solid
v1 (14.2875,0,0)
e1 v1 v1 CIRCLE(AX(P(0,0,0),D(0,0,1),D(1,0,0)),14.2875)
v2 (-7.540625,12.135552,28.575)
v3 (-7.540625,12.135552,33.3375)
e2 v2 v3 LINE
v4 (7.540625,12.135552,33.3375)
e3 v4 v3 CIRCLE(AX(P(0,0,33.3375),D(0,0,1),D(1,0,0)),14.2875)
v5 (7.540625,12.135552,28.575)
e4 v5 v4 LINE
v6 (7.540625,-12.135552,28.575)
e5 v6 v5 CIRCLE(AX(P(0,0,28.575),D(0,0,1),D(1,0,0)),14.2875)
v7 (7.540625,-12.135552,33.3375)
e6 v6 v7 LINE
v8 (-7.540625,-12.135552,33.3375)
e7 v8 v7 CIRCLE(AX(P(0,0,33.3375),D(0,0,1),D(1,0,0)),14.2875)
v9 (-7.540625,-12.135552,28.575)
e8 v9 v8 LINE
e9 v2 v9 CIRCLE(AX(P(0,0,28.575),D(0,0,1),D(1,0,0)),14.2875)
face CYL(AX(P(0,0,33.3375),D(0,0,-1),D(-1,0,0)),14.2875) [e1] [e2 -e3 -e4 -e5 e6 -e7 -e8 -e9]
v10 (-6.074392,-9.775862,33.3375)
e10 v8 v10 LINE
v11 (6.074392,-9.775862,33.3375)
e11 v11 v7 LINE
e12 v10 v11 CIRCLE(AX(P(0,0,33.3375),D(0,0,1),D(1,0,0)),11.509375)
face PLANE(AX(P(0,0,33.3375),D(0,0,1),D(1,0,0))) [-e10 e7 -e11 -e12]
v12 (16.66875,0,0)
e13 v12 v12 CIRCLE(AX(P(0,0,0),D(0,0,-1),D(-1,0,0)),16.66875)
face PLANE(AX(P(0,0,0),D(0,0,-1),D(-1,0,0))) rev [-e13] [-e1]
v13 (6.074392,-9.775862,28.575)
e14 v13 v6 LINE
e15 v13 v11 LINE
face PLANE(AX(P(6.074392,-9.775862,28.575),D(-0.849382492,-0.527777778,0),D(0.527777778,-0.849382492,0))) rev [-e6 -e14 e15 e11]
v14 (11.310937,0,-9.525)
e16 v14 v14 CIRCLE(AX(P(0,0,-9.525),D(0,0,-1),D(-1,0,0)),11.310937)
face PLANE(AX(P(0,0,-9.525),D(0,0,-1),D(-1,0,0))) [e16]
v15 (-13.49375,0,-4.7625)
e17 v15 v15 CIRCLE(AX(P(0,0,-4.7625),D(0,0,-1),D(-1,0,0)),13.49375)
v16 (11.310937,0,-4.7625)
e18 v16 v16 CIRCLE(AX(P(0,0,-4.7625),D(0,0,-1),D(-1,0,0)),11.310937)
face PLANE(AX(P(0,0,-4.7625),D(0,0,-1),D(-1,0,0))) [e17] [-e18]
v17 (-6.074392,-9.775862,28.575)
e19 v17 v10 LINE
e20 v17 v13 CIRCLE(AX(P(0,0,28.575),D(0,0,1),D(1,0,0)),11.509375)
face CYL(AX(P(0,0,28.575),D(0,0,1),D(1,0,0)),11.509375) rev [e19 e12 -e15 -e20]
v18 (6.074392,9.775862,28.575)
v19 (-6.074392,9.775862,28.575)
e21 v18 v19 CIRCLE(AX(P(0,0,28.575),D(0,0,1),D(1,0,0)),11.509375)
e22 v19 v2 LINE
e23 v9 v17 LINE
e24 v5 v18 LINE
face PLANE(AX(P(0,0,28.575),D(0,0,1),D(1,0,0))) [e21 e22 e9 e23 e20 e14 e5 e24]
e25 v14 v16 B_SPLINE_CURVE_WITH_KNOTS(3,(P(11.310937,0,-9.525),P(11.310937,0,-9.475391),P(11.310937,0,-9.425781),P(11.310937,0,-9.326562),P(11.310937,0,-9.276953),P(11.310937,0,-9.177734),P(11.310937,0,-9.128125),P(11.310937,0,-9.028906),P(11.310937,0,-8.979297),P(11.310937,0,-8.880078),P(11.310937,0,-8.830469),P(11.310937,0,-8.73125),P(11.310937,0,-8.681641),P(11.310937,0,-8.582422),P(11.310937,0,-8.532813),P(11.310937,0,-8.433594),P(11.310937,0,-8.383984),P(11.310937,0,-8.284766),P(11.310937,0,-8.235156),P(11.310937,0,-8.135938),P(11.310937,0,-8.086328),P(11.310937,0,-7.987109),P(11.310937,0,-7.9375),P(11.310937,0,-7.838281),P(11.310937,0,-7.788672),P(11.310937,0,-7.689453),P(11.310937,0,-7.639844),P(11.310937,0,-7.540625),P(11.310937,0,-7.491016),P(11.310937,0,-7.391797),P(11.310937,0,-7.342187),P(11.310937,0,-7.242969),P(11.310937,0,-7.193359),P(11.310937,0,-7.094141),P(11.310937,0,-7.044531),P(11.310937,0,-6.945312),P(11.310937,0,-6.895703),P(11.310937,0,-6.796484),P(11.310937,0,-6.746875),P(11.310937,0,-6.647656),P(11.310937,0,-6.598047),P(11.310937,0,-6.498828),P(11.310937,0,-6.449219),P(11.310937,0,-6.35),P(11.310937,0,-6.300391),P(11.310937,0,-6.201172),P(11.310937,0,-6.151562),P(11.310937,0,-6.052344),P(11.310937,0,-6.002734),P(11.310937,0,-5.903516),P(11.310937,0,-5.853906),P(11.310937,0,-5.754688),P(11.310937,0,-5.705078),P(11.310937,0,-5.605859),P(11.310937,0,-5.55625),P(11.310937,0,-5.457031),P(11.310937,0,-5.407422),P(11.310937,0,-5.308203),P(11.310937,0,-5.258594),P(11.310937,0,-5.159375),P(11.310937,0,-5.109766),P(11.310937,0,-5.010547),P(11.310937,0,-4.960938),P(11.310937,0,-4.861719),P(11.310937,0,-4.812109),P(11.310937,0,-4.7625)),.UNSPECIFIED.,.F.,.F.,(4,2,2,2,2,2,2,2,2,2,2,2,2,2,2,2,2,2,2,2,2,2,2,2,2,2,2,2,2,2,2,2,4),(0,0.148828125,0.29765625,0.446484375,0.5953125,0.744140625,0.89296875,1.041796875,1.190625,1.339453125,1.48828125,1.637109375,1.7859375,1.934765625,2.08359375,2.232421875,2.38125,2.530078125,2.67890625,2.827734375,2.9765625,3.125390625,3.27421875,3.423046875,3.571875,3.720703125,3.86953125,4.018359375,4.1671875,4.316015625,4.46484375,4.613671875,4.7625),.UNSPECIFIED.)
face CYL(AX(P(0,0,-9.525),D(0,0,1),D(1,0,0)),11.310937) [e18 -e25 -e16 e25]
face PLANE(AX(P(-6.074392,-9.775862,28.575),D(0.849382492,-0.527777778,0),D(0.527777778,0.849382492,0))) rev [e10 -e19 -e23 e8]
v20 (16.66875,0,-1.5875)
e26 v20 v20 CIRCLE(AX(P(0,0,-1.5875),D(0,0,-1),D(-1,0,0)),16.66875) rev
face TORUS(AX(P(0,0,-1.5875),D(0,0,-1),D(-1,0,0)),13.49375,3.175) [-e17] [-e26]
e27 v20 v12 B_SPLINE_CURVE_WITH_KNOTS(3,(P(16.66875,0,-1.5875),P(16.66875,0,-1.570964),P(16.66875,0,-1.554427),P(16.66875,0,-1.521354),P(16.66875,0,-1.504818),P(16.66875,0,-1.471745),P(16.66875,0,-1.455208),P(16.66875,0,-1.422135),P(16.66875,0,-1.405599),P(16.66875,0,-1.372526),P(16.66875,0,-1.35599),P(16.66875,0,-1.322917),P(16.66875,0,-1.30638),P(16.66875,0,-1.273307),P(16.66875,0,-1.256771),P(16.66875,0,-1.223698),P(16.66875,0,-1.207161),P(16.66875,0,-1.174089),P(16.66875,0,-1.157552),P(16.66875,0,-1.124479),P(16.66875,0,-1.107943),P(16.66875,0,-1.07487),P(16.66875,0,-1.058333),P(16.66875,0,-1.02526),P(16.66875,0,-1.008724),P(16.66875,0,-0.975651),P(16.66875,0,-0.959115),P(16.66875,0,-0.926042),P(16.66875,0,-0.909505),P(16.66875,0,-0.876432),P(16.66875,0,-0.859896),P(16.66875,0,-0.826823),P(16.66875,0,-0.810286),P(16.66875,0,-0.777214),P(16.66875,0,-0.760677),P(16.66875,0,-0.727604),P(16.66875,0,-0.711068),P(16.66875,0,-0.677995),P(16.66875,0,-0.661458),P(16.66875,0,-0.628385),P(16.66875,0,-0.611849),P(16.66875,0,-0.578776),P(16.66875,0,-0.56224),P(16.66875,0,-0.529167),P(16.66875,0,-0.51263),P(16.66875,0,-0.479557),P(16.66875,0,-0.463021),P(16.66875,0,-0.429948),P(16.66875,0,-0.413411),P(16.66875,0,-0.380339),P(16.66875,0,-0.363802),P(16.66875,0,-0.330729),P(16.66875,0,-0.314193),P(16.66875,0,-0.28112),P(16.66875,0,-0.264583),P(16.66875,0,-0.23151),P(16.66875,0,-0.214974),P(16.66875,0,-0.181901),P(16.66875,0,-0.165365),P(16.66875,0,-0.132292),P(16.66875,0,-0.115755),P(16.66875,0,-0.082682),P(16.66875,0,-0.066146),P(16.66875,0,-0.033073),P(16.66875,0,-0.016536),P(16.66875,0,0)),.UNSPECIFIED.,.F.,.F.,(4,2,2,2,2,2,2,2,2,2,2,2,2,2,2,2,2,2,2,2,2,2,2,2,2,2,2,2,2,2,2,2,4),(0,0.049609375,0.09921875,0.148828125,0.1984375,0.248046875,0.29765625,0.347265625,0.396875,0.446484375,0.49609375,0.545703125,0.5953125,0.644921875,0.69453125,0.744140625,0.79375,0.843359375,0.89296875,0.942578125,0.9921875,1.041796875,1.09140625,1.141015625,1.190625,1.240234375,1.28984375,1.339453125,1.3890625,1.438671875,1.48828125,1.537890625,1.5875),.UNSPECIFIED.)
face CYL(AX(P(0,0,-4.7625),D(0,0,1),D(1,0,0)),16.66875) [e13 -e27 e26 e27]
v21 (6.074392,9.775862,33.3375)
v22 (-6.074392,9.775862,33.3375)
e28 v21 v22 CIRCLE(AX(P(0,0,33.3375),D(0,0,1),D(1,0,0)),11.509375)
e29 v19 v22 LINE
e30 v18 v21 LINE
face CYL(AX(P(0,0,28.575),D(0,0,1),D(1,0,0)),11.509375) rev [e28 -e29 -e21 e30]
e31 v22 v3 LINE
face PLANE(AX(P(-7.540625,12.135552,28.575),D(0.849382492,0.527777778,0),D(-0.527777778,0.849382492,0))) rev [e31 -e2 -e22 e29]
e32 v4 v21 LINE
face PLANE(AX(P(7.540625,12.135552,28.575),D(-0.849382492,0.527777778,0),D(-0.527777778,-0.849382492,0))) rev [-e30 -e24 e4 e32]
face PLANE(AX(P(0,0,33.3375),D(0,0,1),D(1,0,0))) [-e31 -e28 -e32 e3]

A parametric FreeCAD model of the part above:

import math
import FreeCAD as App
import Part
import Sketcher

V = App.Vector
Q = App.Units.Quantity


def edges_at(feature, points):
    """Names of the edges that pass closest to the given points."""
    edges = feature.Shape.Edges
    near = lambda p: min(range(len(edges)), key=lambda i: edges[i].distToShape(Part.Vertex(*p))[0])
    return sorted({f"Edge{near(p) + 1}" for p in points})

doc = App.newDocument("Part")
body = doc.addObject("PartDesign::Body", "Body")

# Sketch on XY plane
sketch1 = body.newObject("Sketcher::SketchObject", "Sketch")
sketch1.AttachmentSupport = (doc.getObject("XY_Plane"), [""])
sketch1.MapMode = "FlatFace"
sketch1.addGeometry(Part.Circle(V(0, 0, 0), V(0, 0, 1), 14), False)
sketch1.addConstraint([
    Sketcher.Constraint("Coincident", 0, 3, -1, 1),
    Sketcher.Constraint("Diameter", 0, Q("1.125 in")),
])
pad1 = body.newObject("PartDesign::Pad", "Pad")
pad1.Profile = sketch1
pad1.Length = Q("1.3125 in")

# Sketch on XY plane
sketch2 = body.newObject("Sketcher::SketchObject", "Sketch001")
sketch2.AttachmentSupport = (doc.getObject("XY_Plane"), [""])
sketch2.MapMode = "FlatFace"
sketch2.addGeometry(Part.Circle(V(0, 0, 0), V(0, 0, 1), 17), False)
sketch2.addConstraint([
    Sketcher.Constraint("Coincident", 0, 3, -1, 1),
    Sketcher.Constraint("Diameter", 0, Q("1.3125 in")),
])
pad2 = body.newObject("PartDesign::Pad", "Pad001")
pad2.Profile = sketch2
pad2.Length = Q("0.1875 in")
pad2.Reversed = True
doc.recompute()

fillet = body.newObject("PartDesign::Fillet", "Fillet")
fillet.Base = (pad2, edges_at(pad2, [(-16.669, 0, -4.763)]))
fillet.Radius = Q("0.125 in")

# Sketch on XY plane
sketch3 = body.newObject("Sketcher::SketchObject", "Sketch002")
sketch3.AttachmentSupport = (doc.getObject("XY_Plane"), [""])
sketch3.MapMode = "FlatFace"
sketch3.AttachmentOffset = App.Placement(V(0, 0, -0.1875 * 25.4), App.Rotation())
sketch3.addGeometry(Part.Circle(V(0, 0, 0), V(0, 0, 1), 11), False)
sketch3.addConstraint([
    Sketcher.Constraint("Coincident", 0, 3, -1, 1),
    Sketcher.Constraint("Diameter", 0, Q("0.890625 in")),
])
pad3 = body.newObject("PartDesign::Pad", "Pad002")
pad3.Profile = sketch3
pad3.Length = Q("0.1875 in")
pad3.Reversed = True

# Sketch on XY plane
sketch4 = body.newObject("Sketcher::SketchObject", "Sketch003")
sketch4.AttachmentSupport = (doc.getObject("XY_Plane"), [""])
sketch4.MapMode = "FlatFace"
sketch4.AttachmentOffset = App.Placement(V(0, 0, 1.125 * 25.4), App.Rotation())
sketch4.addGeometry([
    Part.LineSegment(V(-6.1, 9.8, 0), V(-7.5, 12.1, 0)),  # 0
    Part.ArcOfCircle(Part.Circle(V(0, 0, 0), V(0, 0, 1), 14.3), math.radians(122), math.radians(238)),  # 1
    Part.LineSegment(V(-7.5, -12.1, 0), V(-6.1, -9.8, 0)),  # 2
    Part.ArcOfCircle(Part.Circle(V(0, 0, 0), V(0, 0, 1), 11.5), math.radians(-122), math.radians(-58)),  # 3
    Part.LineSegment(V(6.1, -9.8, 0), V(7.5, -12.1, 0)),  # 4
    Part.ArcOfCircle(Part.Circle(V(0, 0, 0), V(0, 0, 1), 14.3), math.radians(-58), math.radians(58)),  # 5
    Part.LineSegment(V(7.5, 12.1, 0), V(6.1, 9.8, 0)),  # 6
    Part.ArcOfCircle(Part.Circle(V(0, 0, 0), V(0, 0, 1), 11.5), math.radians(58), math.radians(122)),  # 7
], False)
sketch4.addConstraint([
    Sketcher.Constraint("Coincident", 0, 2, 1, 1),
    Sketcher.Constraint("Coincident", 1, 2, 2, 1),
    Sketcher.Constraint("Coincident", 2, 2, 3, 1),
    Sketcher.Constraint("Coincident", 3, 2, 4, 1),
    Sketcher.Constraint("Coincident", 4, 2, 5, 1),
    Sketcher.Constraint("Coincident", 5, 2, 6, 1),
    Sketcher.Constraint("Coincident", 6, 2, 7, 1),
    Sketcher.Constraint("Coincident", 7, 2, 0, 1),
    Sketcher.Constraint("Coincident", 1, 3, -1, 1),
    Sketcher.Constraint("Coincident", 3, 3, -1, 1),
    Sketcher.Constraint("Coincident", 5, 3, -1, 1),
    Sketcher.Constraint("Coincident", 7, 3, -1, 1),
    Sketcher.Constraint("Equal", 1, 5),
    Sketcher.Constraint("Equal", 3, 7),
    Sketcher.Constraint("Parallel", 0, 4),
    Sketcher.Constraint("Parallel", 2, 6),
    Sketcher.Constraint("Horizontal", 2, 2, 3, 2),
    Sketcher.Constraint("Horizontal", 1, 2, 4, 2),
    Sketcher.Constraint("Horizontal", 0, 2, 5, 2),
    Sketcher.Constraint("Vertical", 0, 2, 1, 2),
    Sketcher.Constraint("Radius", 1, Q("0.5625 in")),
    Sketcher.Constraint("Radius", 3, Q("0.453125 in")),
    Sketcher.Constraint("DistanceX", 0, 2, -1, 1, Q("0.296875 in")),
    Sketcher.Constraint("DistanceY", 2, 2, -1, 1, Q("9.775862 mm")),
])
pocket1 = body.newObject("PartDesign::Pocket", "Pocket")
pocket1.Profile = sketch4
pocket1.Length = Q("0.1875 in")
pocket1.Reversed = True

doc.recompute()
